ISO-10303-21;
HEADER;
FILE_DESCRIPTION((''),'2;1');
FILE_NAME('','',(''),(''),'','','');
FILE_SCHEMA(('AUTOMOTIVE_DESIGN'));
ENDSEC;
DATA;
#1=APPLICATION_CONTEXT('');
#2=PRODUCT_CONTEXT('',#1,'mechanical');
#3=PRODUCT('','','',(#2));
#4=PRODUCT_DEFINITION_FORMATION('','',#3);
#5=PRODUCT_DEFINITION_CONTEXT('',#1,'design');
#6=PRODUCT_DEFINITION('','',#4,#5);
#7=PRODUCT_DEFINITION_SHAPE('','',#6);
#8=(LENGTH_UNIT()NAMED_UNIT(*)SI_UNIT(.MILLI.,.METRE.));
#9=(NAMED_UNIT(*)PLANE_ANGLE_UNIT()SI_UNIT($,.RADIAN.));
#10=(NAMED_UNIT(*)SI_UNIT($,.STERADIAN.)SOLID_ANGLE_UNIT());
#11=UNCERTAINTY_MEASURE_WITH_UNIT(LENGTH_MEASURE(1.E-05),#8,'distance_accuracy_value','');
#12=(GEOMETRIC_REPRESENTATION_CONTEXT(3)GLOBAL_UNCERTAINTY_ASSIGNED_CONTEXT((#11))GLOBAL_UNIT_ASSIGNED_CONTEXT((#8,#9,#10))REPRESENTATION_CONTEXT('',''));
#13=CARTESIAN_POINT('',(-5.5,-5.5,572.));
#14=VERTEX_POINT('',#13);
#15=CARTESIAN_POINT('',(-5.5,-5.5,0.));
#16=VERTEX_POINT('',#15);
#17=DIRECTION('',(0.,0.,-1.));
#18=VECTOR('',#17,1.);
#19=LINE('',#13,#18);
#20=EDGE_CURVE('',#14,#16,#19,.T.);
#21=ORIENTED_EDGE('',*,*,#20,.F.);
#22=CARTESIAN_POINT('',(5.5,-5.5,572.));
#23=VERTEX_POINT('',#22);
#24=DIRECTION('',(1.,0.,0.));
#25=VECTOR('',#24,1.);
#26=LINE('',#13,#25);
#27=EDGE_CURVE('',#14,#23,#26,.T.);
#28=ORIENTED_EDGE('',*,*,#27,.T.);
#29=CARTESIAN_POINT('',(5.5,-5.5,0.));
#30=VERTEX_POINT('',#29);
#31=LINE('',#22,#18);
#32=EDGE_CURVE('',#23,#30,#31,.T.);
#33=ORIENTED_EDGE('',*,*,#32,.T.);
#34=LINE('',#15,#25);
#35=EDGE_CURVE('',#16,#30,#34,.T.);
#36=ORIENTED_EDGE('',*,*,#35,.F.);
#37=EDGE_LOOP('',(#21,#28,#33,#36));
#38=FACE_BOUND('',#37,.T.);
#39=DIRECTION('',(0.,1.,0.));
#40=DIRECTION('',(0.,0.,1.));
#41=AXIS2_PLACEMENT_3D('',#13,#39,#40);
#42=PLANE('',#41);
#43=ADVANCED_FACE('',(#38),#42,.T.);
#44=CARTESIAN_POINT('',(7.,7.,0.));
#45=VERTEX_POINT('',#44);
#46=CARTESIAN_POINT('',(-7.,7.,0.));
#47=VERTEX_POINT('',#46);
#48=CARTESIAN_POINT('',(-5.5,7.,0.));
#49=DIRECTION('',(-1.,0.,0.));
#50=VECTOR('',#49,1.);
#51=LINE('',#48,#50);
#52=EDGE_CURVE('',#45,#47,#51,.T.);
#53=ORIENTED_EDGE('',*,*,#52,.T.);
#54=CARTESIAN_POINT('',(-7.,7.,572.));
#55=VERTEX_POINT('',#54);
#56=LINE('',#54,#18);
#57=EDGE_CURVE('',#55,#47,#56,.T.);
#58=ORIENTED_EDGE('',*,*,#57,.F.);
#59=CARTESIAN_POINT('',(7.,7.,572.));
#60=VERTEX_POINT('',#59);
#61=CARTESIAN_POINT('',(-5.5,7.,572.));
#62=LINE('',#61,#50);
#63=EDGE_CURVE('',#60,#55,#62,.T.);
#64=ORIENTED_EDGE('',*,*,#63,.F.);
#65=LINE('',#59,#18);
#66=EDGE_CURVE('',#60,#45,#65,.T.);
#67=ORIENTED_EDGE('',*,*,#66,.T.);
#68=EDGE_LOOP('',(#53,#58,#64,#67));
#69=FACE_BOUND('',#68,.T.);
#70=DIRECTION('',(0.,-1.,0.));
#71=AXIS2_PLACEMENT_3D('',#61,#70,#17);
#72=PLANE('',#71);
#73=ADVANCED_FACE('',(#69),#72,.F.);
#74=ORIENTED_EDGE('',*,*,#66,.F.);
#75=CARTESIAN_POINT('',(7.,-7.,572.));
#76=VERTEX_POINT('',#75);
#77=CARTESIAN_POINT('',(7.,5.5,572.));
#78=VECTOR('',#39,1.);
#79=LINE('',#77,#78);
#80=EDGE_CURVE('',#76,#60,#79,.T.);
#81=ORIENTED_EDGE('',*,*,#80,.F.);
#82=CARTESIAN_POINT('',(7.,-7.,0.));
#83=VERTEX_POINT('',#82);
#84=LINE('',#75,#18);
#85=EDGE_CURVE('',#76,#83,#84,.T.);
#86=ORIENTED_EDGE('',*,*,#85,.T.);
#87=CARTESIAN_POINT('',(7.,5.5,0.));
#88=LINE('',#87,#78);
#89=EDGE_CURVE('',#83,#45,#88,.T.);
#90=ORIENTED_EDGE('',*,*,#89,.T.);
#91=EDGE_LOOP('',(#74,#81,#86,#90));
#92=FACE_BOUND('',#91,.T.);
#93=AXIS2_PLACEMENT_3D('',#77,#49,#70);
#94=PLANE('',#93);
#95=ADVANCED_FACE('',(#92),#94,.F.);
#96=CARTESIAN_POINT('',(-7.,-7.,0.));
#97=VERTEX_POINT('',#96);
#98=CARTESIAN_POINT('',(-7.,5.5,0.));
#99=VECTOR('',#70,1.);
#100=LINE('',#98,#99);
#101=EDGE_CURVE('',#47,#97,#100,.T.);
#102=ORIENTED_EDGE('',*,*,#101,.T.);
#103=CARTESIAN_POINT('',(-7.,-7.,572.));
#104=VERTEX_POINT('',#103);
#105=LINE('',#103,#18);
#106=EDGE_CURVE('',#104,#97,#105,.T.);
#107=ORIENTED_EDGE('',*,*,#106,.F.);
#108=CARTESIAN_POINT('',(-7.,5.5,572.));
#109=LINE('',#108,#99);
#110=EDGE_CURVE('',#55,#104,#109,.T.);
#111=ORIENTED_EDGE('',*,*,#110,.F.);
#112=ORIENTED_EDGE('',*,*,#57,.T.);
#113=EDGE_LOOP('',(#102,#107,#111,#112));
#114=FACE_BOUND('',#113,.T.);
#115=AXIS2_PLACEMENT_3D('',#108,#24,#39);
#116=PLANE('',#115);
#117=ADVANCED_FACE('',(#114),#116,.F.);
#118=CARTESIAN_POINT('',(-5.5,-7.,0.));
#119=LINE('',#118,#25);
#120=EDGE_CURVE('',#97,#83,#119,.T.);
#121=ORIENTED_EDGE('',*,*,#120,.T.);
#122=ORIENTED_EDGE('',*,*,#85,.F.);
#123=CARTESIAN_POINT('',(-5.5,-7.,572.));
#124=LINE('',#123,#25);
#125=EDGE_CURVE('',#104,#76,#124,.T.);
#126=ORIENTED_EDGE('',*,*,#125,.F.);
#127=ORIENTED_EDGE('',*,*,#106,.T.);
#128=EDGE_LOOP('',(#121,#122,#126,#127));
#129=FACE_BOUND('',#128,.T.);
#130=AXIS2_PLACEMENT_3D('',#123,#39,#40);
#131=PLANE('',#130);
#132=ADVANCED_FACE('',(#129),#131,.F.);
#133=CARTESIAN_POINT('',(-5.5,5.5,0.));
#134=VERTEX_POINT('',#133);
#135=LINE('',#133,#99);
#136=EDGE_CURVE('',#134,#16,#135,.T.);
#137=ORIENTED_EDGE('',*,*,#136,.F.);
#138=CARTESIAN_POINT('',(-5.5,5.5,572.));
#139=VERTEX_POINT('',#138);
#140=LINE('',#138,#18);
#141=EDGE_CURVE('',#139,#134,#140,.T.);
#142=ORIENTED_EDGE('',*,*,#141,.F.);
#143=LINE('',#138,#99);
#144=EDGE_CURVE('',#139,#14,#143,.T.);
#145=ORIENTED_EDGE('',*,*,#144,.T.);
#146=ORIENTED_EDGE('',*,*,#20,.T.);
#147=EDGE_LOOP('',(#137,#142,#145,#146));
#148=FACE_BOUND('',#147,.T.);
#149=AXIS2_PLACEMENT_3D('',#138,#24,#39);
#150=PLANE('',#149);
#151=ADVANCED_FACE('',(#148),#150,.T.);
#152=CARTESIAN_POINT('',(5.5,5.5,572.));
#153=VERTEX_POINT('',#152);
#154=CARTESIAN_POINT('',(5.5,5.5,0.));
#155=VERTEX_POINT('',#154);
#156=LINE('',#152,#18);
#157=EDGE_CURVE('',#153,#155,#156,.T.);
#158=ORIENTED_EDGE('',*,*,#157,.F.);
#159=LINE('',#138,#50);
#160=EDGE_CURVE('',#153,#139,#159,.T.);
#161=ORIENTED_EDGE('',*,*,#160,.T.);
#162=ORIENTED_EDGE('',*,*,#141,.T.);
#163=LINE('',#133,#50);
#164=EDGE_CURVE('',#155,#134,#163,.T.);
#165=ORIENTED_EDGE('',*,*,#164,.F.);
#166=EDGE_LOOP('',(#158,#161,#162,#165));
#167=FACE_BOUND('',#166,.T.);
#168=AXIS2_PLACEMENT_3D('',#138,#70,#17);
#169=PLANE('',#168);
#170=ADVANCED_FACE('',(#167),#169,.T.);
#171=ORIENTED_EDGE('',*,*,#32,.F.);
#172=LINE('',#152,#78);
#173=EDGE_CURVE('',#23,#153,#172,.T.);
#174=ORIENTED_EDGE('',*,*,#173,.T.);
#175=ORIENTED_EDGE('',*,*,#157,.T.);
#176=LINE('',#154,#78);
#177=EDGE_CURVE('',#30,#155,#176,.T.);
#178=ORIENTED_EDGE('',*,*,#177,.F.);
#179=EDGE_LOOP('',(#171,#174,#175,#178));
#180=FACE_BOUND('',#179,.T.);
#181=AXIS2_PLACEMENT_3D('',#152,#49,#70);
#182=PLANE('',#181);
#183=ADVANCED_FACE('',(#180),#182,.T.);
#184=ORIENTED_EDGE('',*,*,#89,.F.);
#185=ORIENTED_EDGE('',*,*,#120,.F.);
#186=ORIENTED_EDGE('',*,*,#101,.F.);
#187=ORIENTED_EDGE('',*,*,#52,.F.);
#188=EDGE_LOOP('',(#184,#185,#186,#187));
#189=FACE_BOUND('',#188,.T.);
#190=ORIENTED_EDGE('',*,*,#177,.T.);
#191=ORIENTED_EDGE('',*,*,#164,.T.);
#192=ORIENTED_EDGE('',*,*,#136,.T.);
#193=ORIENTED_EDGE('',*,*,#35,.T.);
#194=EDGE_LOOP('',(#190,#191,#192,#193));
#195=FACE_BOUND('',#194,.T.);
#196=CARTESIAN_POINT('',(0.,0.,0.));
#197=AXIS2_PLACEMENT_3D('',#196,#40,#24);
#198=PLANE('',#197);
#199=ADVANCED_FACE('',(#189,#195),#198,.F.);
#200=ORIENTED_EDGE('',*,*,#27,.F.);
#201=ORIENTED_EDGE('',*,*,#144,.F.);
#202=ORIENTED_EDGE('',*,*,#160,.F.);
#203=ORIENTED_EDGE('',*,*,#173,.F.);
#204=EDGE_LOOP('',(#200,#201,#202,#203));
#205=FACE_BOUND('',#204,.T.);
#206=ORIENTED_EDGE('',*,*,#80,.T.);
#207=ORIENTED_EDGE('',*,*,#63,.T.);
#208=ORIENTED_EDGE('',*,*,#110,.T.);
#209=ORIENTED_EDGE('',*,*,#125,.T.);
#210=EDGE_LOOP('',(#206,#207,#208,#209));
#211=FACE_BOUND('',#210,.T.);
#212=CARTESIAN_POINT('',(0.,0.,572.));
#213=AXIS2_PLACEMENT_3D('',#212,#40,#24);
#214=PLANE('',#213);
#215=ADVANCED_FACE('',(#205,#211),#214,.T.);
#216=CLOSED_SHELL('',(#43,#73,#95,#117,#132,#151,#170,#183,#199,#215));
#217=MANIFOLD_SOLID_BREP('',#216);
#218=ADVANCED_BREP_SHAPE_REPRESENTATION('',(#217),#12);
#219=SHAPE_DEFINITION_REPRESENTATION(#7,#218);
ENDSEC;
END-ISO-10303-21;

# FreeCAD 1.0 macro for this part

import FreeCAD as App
import Part
import Sketcher

V = App.Vector


def add_polygon(sketch, points):
    """Adds a closed chain of lines whose ends are joined by coincident constraints."""
    first, n = sketch.GeometryCount, len(points)
    for a, b in zip(points, points[1:] + points[:1]):
        sketch.addGeometry(Part.LineSegment(App.Vector(*a, 0), App.Vector(*b, 0)), False)
    for i in range(n):
        sketch.addConstraint(Sketcher.Constraint("Coincident", first + i, 2, first + (i + 1) % n, 1))

doc = App.newDocument("Part")
params = doc.addObject("Spreadsheet::Sheet", "Params")
for row, (alias, value) in enumerate([
    ("sketch1_width", "14 mm"),
    ("sketch1_width2", "11 mm"),
    ("pad1_length", "572 mm"),
], start=1):
    params.set(f"A{row}", alias)
    params.set(f"B{row}", "=" + value)
    params.setAlias(f"B{row}", alias)

body = doc.addObject("PartDesign::Body", "Body")

# Sketch on XY plane
sketch1 = body.newObject("Sketcher::SketchObject", "Sketch")
sketch1.AttachmentSupport = (doc.getObject("XY_Plane"), [""])
sketch1.MapMode = "FlatFace"
add_polygon(sketch1, [(-7, 7), (-7, -7), (7, -7), (7, 7)])  # lines 0-3
add_polygon(sketch1, [(5.5, -5.5), (-5.5, -5.5), (-5.5, 5.5), (5.5, 5.5)])  # lines 4-7
sketch1.addConstraint([
    Sketcher.Constraint("Vertical", 0),
    Sketcher.Constraint("Horizontal", 1),
    Sketcher.Constraint("Vertical", 2),
    Sketcher.Constraint("Horizontal", 3),
    Sketcher.Constraint("Horizontal", 4),
    Sketcher.Constraint("Vertical", 5),
    Sketcher.Constraint("Horizontal", 6),
    Sketcher.Constraint("Vertical", 7),
    Sketcher.Constraint("Symmetric", 0, 2, 2, 2, -1, 1),
    Sketcher.Constraint("Symmetric", 4, 2, 6, 2, -1, 1),
    Sketcher.Constraint("Equal", 3, 0),
    Sketcher.Constraint("Equal", 6, 5),
    Sketcher.Constraint("DistanceX", 1, 1, 1, 2, 14.0),
    Sketcher.Constraint("DistanceX", 4, 2, 4, 1, 11.0),
])
sketch1.setExpression("Constraints[20]", "Params.sketch1_width")
sketch1.setExpression("Constraints[21]", "Params.sketch1_width2")
pad1 = body.newObject("PartDesign::Pad", "Pad")
pad1.Profile = sketch1
pad1.setExpression("Length", "Params.pad1_length")

doc.recompute()
